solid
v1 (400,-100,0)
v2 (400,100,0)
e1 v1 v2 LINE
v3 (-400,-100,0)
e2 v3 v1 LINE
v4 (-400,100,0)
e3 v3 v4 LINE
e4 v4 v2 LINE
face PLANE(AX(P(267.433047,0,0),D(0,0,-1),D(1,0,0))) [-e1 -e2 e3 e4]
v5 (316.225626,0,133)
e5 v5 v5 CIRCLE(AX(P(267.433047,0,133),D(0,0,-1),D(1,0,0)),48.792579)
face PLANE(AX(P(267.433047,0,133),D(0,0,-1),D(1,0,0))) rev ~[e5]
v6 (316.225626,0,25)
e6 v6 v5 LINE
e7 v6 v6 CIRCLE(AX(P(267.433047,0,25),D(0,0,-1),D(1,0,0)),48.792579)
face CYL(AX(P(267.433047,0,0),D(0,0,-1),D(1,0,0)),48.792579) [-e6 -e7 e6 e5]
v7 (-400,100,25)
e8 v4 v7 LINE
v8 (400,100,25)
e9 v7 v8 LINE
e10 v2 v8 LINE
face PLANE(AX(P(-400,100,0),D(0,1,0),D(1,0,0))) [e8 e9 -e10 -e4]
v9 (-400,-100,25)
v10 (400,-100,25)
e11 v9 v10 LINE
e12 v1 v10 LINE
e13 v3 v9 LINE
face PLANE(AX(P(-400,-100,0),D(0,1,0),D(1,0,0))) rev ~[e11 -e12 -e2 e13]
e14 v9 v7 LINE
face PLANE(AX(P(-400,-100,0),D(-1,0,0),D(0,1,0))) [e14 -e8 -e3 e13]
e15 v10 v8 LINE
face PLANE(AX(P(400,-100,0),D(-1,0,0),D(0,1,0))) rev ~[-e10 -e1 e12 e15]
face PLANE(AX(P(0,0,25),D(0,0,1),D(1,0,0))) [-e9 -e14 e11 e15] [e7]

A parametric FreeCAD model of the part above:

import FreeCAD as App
import Part
import Sketcher

doc = App.newDocument("Part")
body = doc.addObject("PartDesign::Body", "Body")

sketch1 = body.newObject("Sketcher::SketchObject", "Sketch")
sketch1.AttachmentSupport = (doc.getObject("XY_Plane"), [""])
sketch1.MapMode = "FlatFace"
sketch1.addGeometry(Part.LineSegment(App.Vector(-400, 100, 0), App.Vector(-400, -100, 0)), False)
sketch1.addGeometry(Part.LineSegment(App.Vector(-400, -100, 0), App.Vector(400, -100, 0)), False)
sketch1.addGeometry(Part.LineSegment(App.Vector(400, -100, 0), App.Vector(400, 100, 0)), False)
sketch1.addGeometry(Part.LineSegment(App.Vector(400, 100, 0), App.Vector(-400, 100, 0)), False)
sketch1.addConstraint(Sketcher.Constraint("Coincident", 0, 2, 1, 1))
sketch1.addConstraint(Sketcher.Constraint("Coincident", 1, 2, 2, 1))
sketch1.addConstraint(Sketcher.Constraint("Coincident", 2, 2, 3, 1))
sketch1.addConstraint(Sketcher.Constraint("Coincident", 3, 2, 0, 1))
sketch1.addConstraint(Sketcher.Constraint("Vertical", 0))
sketch1.addConstraint(Sketcher.Constraint("Horizontal", 1))
sketch1.addConstraint(Sketcher.Constraint("Vertical", 2))
sketch1.addConstraint(Sketcher.Constraint("Horizontal", 3))
sketch1.addConstraint(Sketcher.Constraint("Symmetric", 0, 2, 2, 2, -1, 1))
sketch1.addConstraint(Sketcher.Constraint("DistanceX", 1, 1, 1, 2, 800.0))
sketch1.addConstraint(Sketcher.Constraint("DistanceY", 0, 2, 0, 1, 200.0))
pad1 = body.newObject("PartDesign::Pad", "Pad")
pad1.Profile = sketch1
pad1.Length = 25

sketch2 = body.newObject("Sketcher::SketchObject", "Sketch001")
sketch2.AttachmentSupport = (doc.getObject("XY_Plane"), [""])
sketch2.MapMode = "FlatFace"
sketch2.addGeometry(Part.Circle(App.Vector(267.433047, 0, 0), App.Vector(0, 0, 1), 48.792579), False)
sketch2.addConstraint(Sketcher.Constraint("PointOnObject", 0, 3, -1))
sketch2.addConstraint(Sketcher.Constraint("Diameter", 0, 97.585158))
sketch2.addConstraint(Sketcher.Constraint("DistanceX", -1, 1, 0, 3, 267.433047))
pad2 = body.newObject("PartDesign::Pad", "Pad001")
pad2.Profile = sketch2
pad2.Length = 133

doc.recompute()
